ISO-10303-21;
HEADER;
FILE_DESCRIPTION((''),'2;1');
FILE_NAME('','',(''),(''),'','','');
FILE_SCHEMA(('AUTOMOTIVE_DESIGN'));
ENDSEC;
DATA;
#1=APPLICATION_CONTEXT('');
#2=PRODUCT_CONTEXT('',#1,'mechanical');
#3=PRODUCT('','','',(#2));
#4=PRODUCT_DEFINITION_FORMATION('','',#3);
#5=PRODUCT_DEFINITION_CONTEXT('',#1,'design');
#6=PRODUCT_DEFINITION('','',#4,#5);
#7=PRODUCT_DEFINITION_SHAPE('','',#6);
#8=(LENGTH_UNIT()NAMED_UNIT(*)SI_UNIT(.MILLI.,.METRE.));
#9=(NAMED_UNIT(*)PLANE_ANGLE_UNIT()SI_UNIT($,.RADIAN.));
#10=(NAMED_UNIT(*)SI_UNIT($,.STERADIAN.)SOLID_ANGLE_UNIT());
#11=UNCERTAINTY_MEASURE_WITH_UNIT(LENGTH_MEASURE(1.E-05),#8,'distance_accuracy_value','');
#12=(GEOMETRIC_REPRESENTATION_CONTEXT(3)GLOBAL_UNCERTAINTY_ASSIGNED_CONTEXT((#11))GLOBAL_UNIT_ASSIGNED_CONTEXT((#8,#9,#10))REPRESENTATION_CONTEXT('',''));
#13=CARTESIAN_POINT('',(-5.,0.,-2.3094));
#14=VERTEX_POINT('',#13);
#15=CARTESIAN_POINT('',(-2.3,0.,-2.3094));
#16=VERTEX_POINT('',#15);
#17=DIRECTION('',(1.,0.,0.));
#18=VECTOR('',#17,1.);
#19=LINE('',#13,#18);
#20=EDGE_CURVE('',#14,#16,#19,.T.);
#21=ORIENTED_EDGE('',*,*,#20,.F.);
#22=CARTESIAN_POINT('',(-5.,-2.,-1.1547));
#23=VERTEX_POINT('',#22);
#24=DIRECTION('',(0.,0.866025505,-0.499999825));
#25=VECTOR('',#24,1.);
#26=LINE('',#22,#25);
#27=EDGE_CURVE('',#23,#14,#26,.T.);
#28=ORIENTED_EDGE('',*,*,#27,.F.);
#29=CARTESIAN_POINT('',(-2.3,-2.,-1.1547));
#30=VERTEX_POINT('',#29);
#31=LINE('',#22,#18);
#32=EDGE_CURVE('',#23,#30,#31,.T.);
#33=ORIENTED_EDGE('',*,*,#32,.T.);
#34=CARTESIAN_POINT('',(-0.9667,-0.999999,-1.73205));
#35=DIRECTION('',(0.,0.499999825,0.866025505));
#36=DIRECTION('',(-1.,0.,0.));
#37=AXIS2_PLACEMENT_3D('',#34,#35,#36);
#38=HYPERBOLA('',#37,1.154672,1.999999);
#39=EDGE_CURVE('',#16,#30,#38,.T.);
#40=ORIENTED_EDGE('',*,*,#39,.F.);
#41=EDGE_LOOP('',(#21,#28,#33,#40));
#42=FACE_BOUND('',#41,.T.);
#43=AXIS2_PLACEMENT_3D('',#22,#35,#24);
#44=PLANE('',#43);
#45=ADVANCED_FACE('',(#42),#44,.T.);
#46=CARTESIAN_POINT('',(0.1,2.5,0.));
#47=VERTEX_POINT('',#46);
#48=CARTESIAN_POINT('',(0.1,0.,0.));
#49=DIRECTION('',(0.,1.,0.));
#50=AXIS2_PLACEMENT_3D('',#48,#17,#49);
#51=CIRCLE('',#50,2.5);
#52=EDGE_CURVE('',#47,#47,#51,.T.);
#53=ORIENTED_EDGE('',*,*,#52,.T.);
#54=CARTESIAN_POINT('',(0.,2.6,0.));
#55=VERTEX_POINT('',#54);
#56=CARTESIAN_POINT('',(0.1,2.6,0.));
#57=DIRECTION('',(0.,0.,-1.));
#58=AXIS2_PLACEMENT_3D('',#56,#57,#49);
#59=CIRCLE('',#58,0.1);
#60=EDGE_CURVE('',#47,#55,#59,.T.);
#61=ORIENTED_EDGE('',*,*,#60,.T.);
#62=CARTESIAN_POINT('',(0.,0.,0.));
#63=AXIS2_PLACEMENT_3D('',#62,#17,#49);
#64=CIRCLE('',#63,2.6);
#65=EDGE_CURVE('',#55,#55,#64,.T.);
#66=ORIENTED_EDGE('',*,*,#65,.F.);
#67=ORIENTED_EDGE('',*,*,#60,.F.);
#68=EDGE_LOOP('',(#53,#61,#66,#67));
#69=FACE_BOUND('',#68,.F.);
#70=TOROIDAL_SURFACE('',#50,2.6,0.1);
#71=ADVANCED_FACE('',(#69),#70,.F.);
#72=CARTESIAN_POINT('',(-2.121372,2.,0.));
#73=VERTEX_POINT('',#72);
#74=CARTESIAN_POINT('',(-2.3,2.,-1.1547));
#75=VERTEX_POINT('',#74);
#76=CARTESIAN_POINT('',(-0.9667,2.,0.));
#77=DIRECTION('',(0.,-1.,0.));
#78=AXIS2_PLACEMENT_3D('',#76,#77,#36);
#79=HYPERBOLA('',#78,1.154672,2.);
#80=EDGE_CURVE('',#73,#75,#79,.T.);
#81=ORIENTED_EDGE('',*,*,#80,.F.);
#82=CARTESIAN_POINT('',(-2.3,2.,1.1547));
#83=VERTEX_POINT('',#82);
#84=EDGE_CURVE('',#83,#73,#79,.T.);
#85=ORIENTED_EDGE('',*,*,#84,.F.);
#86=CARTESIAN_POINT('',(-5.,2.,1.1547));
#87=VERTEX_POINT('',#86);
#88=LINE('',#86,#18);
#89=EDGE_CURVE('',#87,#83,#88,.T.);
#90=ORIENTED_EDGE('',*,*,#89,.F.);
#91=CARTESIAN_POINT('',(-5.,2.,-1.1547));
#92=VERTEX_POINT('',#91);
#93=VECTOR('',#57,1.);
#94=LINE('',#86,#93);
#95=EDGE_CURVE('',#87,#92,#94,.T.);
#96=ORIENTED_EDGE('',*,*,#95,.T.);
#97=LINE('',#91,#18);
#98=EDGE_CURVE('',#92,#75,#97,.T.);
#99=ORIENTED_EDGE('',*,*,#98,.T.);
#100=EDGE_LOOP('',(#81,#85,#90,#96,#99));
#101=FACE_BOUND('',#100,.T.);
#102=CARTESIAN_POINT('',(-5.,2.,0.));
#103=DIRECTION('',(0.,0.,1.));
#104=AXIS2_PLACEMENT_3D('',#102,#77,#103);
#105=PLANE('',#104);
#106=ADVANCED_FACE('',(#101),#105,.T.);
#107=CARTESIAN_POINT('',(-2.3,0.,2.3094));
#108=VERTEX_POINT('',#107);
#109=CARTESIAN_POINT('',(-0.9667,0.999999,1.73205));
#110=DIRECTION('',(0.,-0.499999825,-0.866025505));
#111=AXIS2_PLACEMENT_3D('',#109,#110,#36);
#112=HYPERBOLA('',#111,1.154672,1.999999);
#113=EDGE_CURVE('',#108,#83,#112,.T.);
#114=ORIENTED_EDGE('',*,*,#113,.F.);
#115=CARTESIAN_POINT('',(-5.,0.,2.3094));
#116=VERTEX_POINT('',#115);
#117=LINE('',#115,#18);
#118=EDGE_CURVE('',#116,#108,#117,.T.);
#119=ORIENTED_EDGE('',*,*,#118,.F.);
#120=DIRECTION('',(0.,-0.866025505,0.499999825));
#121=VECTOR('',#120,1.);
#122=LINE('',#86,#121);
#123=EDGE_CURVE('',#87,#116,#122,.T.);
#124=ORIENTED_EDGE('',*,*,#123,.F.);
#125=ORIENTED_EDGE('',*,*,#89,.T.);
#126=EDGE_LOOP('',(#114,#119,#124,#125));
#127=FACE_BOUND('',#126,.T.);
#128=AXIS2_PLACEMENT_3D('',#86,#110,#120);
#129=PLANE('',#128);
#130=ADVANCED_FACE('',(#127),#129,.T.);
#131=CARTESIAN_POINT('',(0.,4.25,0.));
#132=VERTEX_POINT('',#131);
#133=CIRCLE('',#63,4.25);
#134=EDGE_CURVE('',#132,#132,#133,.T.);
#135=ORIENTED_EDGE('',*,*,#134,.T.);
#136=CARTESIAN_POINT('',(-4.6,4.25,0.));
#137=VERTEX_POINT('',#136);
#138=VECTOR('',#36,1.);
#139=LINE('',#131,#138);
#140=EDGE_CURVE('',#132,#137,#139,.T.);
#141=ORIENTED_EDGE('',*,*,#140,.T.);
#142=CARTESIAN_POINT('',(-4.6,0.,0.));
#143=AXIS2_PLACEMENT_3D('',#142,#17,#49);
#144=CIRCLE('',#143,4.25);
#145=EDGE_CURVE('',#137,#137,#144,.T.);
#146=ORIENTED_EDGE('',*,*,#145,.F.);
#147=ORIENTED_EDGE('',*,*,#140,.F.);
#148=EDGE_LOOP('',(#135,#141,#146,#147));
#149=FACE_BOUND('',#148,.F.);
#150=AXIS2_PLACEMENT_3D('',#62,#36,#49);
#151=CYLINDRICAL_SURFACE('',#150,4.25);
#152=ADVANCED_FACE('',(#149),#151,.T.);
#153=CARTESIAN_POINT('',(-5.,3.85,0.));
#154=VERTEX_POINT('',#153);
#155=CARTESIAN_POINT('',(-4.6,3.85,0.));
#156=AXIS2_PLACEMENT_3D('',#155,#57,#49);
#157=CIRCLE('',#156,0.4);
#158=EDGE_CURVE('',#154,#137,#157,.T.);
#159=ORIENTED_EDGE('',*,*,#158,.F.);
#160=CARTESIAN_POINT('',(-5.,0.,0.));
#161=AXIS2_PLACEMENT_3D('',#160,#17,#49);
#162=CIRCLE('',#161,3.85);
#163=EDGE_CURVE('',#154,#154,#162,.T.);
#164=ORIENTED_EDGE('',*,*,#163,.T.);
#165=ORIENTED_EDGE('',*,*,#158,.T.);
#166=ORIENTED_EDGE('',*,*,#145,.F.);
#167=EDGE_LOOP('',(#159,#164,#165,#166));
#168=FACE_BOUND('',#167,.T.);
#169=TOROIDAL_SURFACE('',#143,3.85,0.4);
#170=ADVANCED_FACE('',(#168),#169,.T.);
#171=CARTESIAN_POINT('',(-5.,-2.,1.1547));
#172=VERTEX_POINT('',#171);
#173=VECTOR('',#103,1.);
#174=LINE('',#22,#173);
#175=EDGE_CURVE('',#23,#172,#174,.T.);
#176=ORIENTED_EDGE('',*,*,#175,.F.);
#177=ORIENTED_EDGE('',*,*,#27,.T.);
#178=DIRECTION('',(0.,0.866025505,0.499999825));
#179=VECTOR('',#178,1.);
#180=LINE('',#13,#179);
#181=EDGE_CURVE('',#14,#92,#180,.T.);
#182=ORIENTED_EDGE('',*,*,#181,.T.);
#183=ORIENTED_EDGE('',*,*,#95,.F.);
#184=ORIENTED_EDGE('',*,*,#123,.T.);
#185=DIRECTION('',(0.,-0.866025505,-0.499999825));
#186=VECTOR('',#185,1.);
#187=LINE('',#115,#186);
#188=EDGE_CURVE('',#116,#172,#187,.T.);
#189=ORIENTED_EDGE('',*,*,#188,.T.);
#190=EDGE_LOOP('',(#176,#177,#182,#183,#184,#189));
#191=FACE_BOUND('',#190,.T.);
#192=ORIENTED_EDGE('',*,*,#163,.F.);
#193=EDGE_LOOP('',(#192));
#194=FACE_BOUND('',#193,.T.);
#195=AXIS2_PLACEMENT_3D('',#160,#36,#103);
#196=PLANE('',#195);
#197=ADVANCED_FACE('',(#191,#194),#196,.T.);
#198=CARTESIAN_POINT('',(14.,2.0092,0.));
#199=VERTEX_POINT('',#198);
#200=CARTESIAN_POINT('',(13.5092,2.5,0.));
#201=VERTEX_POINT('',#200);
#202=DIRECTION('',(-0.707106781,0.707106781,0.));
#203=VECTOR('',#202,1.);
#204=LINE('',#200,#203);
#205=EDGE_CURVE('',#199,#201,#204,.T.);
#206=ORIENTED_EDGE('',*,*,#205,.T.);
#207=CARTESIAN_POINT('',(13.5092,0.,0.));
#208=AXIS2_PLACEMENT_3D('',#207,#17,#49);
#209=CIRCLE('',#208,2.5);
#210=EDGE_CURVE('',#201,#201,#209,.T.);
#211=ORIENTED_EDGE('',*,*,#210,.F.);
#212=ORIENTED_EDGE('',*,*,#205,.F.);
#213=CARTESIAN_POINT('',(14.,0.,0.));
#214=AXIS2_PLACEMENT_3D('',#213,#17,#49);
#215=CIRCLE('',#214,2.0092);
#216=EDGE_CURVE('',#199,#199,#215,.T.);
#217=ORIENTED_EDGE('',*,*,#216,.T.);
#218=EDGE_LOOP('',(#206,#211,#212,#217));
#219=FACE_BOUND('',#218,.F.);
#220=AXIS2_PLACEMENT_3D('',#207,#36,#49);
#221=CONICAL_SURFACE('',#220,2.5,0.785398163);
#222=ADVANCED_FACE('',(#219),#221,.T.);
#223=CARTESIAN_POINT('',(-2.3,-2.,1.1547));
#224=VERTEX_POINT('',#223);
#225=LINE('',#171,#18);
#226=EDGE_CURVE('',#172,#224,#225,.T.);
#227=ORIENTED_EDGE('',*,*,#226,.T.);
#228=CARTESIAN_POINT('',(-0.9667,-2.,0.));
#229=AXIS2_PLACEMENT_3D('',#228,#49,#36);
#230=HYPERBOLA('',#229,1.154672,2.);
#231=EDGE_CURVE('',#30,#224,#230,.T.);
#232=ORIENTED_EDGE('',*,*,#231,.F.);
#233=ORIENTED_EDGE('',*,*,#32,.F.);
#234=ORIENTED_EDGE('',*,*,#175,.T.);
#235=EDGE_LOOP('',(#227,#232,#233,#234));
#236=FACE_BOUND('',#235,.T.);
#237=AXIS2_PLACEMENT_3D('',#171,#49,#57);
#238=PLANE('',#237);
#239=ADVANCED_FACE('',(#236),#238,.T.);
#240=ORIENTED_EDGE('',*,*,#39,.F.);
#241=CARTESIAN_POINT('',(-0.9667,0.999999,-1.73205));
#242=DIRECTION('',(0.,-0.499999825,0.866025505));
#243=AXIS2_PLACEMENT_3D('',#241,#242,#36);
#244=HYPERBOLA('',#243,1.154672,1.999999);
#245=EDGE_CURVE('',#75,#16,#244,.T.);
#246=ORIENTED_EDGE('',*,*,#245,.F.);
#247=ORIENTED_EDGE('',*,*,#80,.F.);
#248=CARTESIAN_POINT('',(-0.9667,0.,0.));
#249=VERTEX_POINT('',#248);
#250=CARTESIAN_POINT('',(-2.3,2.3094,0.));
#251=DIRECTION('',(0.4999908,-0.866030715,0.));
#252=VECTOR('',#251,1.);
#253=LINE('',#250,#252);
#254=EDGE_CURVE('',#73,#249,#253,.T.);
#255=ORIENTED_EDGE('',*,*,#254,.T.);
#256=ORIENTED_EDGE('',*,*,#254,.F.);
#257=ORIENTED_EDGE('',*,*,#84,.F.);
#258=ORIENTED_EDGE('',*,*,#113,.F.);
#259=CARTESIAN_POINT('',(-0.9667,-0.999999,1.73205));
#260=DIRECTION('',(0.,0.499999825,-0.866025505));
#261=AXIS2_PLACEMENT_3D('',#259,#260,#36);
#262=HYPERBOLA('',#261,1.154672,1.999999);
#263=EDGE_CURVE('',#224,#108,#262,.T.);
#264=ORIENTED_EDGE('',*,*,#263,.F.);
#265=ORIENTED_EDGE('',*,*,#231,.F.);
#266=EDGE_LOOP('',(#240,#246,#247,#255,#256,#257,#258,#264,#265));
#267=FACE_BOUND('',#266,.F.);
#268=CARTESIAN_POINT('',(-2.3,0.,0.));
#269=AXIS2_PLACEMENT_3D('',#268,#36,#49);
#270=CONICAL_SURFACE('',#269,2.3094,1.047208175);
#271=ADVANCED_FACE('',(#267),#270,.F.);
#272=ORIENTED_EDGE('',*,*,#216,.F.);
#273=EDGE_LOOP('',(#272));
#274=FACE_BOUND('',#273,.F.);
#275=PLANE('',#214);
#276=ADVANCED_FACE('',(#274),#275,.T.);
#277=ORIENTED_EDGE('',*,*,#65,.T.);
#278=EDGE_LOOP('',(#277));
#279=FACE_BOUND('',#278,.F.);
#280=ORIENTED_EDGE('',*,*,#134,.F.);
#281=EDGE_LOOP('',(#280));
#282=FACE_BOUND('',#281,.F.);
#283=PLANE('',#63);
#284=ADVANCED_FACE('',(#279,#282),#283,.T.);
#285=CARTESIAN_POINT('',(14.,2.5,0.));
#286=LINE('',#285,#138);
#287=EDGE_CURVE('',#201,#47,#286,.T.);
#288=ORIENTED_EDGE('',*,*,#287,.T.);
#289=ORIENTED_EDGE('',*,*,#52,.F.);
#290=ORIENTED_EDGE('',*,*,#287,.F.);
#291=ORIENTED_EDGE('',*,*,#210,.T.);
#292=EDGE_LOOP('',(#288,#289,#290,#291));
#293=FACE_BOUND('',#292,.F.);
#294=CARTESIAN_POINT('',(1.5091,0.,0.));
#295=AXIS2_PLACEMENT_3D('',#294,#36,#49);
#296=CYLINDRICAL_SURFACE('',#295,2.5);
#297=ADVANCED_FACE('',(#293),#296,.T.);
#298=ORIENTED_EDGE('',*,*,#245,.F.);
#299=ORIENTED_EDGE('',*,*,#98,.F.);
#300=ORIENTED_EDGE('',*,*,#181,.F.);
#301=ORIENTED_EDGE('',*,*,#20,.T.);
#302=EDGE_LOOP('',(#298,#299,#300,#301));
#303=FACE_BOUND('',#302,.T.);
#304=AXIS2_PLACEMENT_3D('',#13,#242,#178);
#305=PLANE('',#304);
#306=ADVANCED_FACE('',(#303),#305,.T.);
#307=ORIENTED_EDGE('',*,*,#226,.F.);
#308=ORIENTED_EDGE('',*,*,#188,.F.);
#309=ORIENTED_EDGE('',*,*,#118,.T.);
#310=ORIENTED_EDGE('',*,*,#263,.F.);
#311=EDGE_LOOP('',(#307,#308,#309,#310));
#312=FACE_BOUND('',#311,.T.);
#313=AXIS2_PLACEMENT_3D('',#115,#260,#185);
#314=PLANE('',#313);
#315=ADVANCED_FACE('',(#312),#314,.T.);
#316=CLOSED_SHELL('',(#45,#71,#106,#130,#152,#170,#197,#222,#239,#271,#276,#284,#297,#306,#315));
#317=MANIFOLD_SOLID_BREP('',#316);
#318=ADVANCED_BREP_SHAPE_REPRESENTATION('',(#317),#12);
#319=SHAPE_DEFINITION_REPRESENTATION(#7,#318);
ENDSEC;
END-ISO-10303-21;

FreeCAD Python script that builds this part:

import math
import FreeCAD as App
import Part
import Sketcher

V = App.Vector
Q = App.Units.Quantity


def edges_at(feature, points):
    """Names of the edges that pass closest to the given points."""
    edges = feature.Shape.Edges
    near = lambda p: min(range(len(edges)), key=lambda i: edges[i].distToShape(Part.Vertex(*p))[0])
    return sorted({f"Edge{near(p) + 1}" for p in points})

doc = App.newDocument("Part")
params = doc.addObject("Spreadsheet::Sheet", "Params")
for row, (alias, value) in enumerate([
    ("sketch1_width", "14 mm"),
    ("sketch1_width2", "5 mm"),
    ("sketch1_width3", "2.7 mm"),
    ("sketch1_height", "2.5 mm"),
    ("sketch1_height2", "1.75 mm"),
    ("revolution_angle", "360 deg"),
    ("pad1_length", "2.8786 mm"),
    ("fillet_radius", "0.4 mm"),
    ("chamfer_size", "0.4908 mm"),
    ("chamfer_size2", "0.4908 mm"),
    ("fillet2_radius", "0.1 mm"),
], start=1):
    params.set(f"A{row}", alias)
    params.set(f"B{row}", "=" + value)
    params.setAlias(f"B{row}", alias)

body = doc.addObject("PartDesign::Body", "Body")

sketch1 = body.newObject("Sketcher::SketchObject", "Sketch")
sketch1.AttachmentSupport = (doc.getObject("XY_Plane"), [""])
sketch1.MapMode = "FlatFace"
sketch1.addGeometry(Part.LineSegment(V(-2.3, 2.3, 0), V(-1, 0, 0)), False)
sketch1.addGeometry(Part.LineSegment(V(-1, 0, 0), V(14, 0, 0)), False)
sketch1.addGeometry(Part.LineSegment(V(14, 0, 0), V(14, 2.5, 0)), False)
sketch1.addGeometry(Part.LineSegment(V(14, 2.5, 0), V(0, 2.5, 0)), False)
sketch1.addGeometry(Part.LineSegment(V(0, 2.5, 0), V(0, 4.2, 0)), False)
sketch1.addGeometry(Part.LineSegment(V(0, 4.2, 0), V(-5, 4.2, 0)), False)
sketch1.addGeometry(Part.LineSegment(V(-5, 4.2, 0), V(-5, 2.3, 0)), False)
sketch1.addGeometry(Part.LineSegment(V(-5, 2.3, 0), V(-2.3, 2.3, 0)), False)
sketch1.addConstraint(Sketcher.Constraint("Coincident", 0, 2, 1, 1))
sketch1.addConstraint(Sketcher.Constraint("Coincident", 1, 2, 2, 1))
sketch1.addConstraint(Sketcher.Constraint("Coincident", 2, 2, 3, 1))
sketch1.addConstraint(Sketcher.Constraint("Coincident", 3, 2, 4, 1))
sketch1.addConstraint(Sketcher.Constraint("Coincident", 4, 2, 5, 1))
sketch1.addConstraint(Sketcher.Constraint("Coincident", 5, 2, 6, 1))
sketch1.addConstraint(Sketcher.Constraint("Coincident", 6, 2, 7, 1))
sketch1.addConstraint(Sketcher.Constraint("Coincident", 7, 2, 0, 1))
sketch1.addConstraint(Sketcher.Constraint("Horizontal", 1))
sketch1.addConstraint(Sketcher.Constraint("Vertical", 2))
sketch1.addConstraint(Sketcher.Constraint("Horizontal", 3))
sketch1.addConstraint(Sketcher.Constraint("Vertical", 4))
sketch1.addConstraint(Sketcher.Constraint("Horizontal", 5))
sketch1.addConstraint(Sketcher.Constraint("Vertical", 6))
sketch1.addConstraint(Sketcher.Constraint("Horizontal", 7))
sketch1.addConstraint(Sketcher.Constraint("PointOnObject", 0, 2, -1))
sketch1.addConstraint(Sketcher.Constraint("PointOnObject", 3, 2, -2))
sketch1.addConstraint(Sketcher.Constraint("DistanceX", 3, 2, 3, 1, 14.0))
sketch1.addConstraint(Sketcher.Constraint("DistanceX", 5, 2, 5, 1, 5.0))
sketch1.addConstraint(Sketcher.Constraint("DistanceX", 7, 1, 7, 2, 2.7))
sketch1.addConstraint(Sketcher.Constraint("Angle", 0, Q("-60.0006 deg")))
sketch1.addConstraint(Sketcher.Constraint("DistanceY", 2, 1, 2, 2, 2.5))
sketch1.addConstraint(Sketcher.Constraint("DistanceY", 4, 1, 4, 2, 1.75))
sketch1.addConstraint(Sketcher.Constraint("DistanceX", 1, 1, 1, 2, 14.9667))
sketch1.setExpression("Constraints[17]", "Params.sketch1_width")
sketch1.setExpression("Constraints[18]", "Params.sketch1_width2")
sketch1.setExpression("Constraints[19]", "Params.sketch1_width3")
sketch1.setExpression("Constraints[21]", "Params.sketch1_height")
sketch1.setExpression("Constraints[22]", "Params.sketch1_height2")
revolution = body.newObject("PartDesign::Revolution", "Revolution")
revolution.Profile = sketch1
revolution.ReferenceAxis = (sketch1, ["H_Axis"])
revolution.setExpression("Angle", "Params.revolution_angle")

sketch2 = body.newObject("Sketcher::SketchObject", "Sketch001")
sketch2.AttachmentSupport = (doc.getObject("YZ_Plane"), [""])
sketch2.MapMode = "FlatFace"
sketch2.AttachmentOffset = App.Placement(V(0, 0, -5), App.Rotation())
sketch2.addGeometry(Part.LineSegment(V(2, 1.2, 0), V(0, 2.3, 0)), False)
sketch2.addGeometry(Part.ArcOfCircle(Part.Circle(V(0, 0, 0), V(0, 0, 1), 2.3), math.radians(30), math.radians(90)), False)
sketch2.addGeometry(Part.ArcOfCircle(Part.Circle(V(0, 0, 0), V(0, 0, 1), 2.3), math.radians(90), math.radians(150)), False)
sketch2.addGeometry(Part.LineSegment(V(0, 2.3, 0), V(-2, 1.2, 0)), False)
sketch2.addGeometry(Part.ArcOfCircle(Part.Circle(V(0, 0, 0), V(0, 0, 1), 2.3), math.radians(-30), math.radians(30)), False)
sketch2.addGeometry(Part.LineSegment(V(2, -1.2, 0), V(2, 1.2, 0)), False)
sketch2.addGeometry(Part.LineSegment(V(-2, 1.2, 0), V(-2, -1.2, 0)), False)
sketch2.addGeometry(Part.ArcOfCircle(Part.Circle(V(0, 0, 0), V(0, 0, 1), 2.3), math.radians(150), math.radians(210)), False)
sketch2.addGeometry(Part.LineSegment(V(-2, -1.2, 0), V(0, -2.3, 0)), False)
sketch2.addGeometry(Part.ArcOfCircle(Part.Circle(V(0, 0, 0), V(0, 0, 1), 2.3), math.radians(-150), math.radians(-90)), False)
sketch2.addGeometry(Part.ArcOfCircle(Part.Circle(V(0, 0, 0), V(0, 0, 1), 2.3), math.radians(-90), math.radians(-30)), False)
sketch2.addGeometry(Part.LineSegment(V(0, -2.3, 0), V(2, -1.2, 0)), False)
sketch2.addConstraint(Sketcher.Constraint("Coincident", 0, 1, 1, 1))
sketch2.addConstraint(Sketcher.Constraint("Coincident", 1, 2, 0, 2))
sketch2.addConstraint(Sketcher.Constraint("Coincident", 2, 1, 3, 1))
sketch2.addConstraint(Sketcher.Constraint("Coincident", 3, 2, 2, 2))
sketch2.addConstraint(Sketcher.Constraint("Coincident", 4, 1, 5, 1))
sketch2.addConstraint(Sketcher.Constraint("Coincident", 5, 2, 4, 2))
sketch2.addConstraint(Sketcher.Constraint("Coincident", 6, 1, 7, 1))
sketch2.addConstraint(Sketcher.Constraint("Coincident", 7, 2, 6, 2))
sketch2.addConstraint(Sketcher.Constraint("Coincident", 8, 1, 9, 1))
sketch2.addConstraint(Sketcher.Constraint("Coincident", 9, 2, 8, 2))
sketch2.addConstraint(Sketcher.Constraint("Coincident", 10, 1, 11, 1))
sketch2.addConstraint(Sketcher.Constraint("Coincident", 11, 2, 10, 2))
sketch2.addConstraint(Sketcher.Constraint("Vertical", 5))
sketch2.addConstraint(Sketcher.Constraint("Vertical", 6))
sketch2.addConstraint(Sketcher.Constraint("Coincident", 1, 3, -1, 1))
sketch2.addConstraint(Sketcher.Constraint("Coincident", 2, 3, -1, 1))
sketch2.addConstraint(Sketcher.Constraint("Coincident", 4, 3, -1, 1))
sketch2.addConstraint(Sketcher.Constraint("Coincident", 7, 3, -1, 1))
sketch2.addConstraint(Sketcher.Constraint("Coincident", 9, 3, -1, 1))
sketch2.addConstraint(Sketcher.Constraint("Coincident", 10, 3, -1, 1))
sketch2.addConstraint(Sketcher.Constraint("Coincident", 2, 1, 1, 2))
sketch2.addConstraint(Sketcher.Constraint("Coincident", 5, 2, 0, 1))
sketch2.addConstraint(Sketcher.Constraint("Coincident", 6, 1, 3, 2))
sketch2.addConstraint(Sketcher.Constraint("Coincident", 8, 1, 7, 2))
sketch2.addConstraint(Sketcher.Constraint("Coincident", 10, 1, 9, 2))
sketch2.addConstraint(Sketcher.Constraint("PointOnObject", 1, 2, -2))
sketch2.addConstraint(Sketcher.Constraint("PointOnObject", 9, 2, -2))
sketch2.addConstraint(Sketcher.Constraint("Parallel", 0, 8))
sketch2.addConstraint(Sketcher.Constraint("Parallel", 3, 11))
sketch2.addConstraint(Sketcher.Constraint("Angle", 0, Q("150 deg")))
sketch2.addConstraint(Sketcher.Constraint("DistanceX", -1, 1, 0, 1, 2.0))
pad1 = body.newObject("PartDesign::Pad", "Pad")
pad1.Profile = sketch2
pad1.setExpression("Length", "Params.pad1_length")
doc.recompute()

fillet = body.newObject("PartDesign::Fillet", "Fillet")
fillet.Base = (pad1, edges_at(pad1, [(-5, -4.25, 0)]))
fillet.setExpression("Radius", "Params.fillet_radius")
doc.recompute()

chamfer = body.newObject("PartDesign::Chamfer", "Chamfer")
chamfer.Base = (fillet, edges_at(fillet, [(14, -2.5, 0)]))
chamfer.ChamferType = "Two distances"
chamfer.setExpression("Size", "Params.chamfer_size")
chamfer.setExpression("Size2", "Params.chamfer_size2")
doc.recompute()

fillet2 = body.newObject("PartDesign::Fillet", "Fillet001")
fillet2.Base = (chamfer, edges_at(chamfer, [(0, -2.5, 0)]))
fillet2.setExpression("Radius", "Params.fillet2_radius")

doc.recompute()
